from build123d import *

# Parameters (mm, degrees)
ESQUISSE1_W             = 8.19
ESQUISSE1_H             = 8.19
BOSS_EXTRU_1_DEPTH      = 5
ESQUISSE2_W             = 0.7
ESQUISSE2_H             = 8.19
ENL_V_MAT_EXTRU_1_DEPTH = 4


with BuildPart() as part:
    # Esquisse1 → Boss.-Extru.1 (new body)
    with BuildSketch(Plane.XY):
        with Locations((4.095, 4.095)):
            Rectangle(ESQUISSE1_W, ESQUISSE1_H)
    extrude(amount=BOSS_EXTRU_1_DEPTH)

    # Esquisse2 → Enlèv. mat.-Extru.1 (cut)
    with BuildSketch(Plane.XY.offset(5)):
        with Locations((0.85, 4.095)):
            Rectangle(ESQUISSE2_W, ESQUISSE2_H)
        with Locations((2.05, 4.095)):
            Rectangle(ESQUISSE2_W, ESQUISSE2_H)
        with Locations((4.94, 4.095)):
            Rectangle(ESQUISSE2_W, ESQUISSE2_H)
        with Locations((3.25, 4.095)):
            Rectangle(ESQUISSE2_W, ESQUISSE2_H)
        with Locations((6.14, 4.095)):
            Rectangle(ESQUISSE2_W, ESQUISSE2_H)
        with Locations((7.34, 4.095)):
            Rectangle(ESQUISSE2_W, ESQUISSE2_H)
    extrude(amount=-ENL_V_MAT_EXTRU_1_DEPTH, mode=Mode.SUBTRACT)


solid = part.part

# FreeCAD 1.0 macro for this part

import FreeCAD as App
import Part
import Sketcher

V = App.Vector
Q = App.Units.Quantity

doc = App.newDocument("Part")
body = doc.addObject("PartDesign::Body", "Body")

sketch1 = body.newObject("Sketcher::SketchObject", "Sketch")
sketch1.AttachmentSupport = (doc.getObject("XY_Plane"), [""])
sketch1.MapMode = "FlatFace"
sketch1.addGeometry(Part.LineSegment(V(0, 8, 0), V(0, 0, 0)), False)
sketch1.addGeometry(Part.LineSegment(V(0, 0, 0), V(8, 0, 0)), False)
sketch1.addGeometry(Part.LineSegment(V(8, 0, 0), V(8, 8, 0)), False)
sketch1.addGeometry(Part.LineSegment(V(8, 8, 0), V(0, 8, 0)), False)
sketch1.addConstraint(Sketcher.Constraint("Coincident", 0, 2, 1, 1))
sketch1.addConstraint(Sketcher.Constraint("Coincident", 1, 2, 2, 1))
sketch1.addConstraint(Sketcher.Constraint("Coincident", 2, 2, 3, 1))
sketch1.addConstraint(Sketcher.Constraint("Coincident", 3, 2, 0, 1))
sketch1.addConstraint(Sketcher.Constraint("Vertical", 0))
sketch1.addConstraint(Sketcher.Constraint("Horizontal", 1))
sketch1.addConstraint(Sketcher.Constraint("Vertical", 2))
sketch1.addConstraint(Sketcher.Constraint("Horizontal", 3))
sketch1.addConstraint(Sketcher.Constraint("Coincident", 0, 2, -1, 1))
sketch1.addConstraint(Sketcher.Constraint("Equal", 3, 0))
sketch1.addConstraint(Sketcher.Constraint("DistanceX", 1, 1, 1, 2, Q("8.19 mm")))
pad1 = body.newObject("PartDesign::Pad", "Pad")
pad1.Profile = sketch1
pad1.Length = 5

sketch2 = body.newObject("Sketcher::SketchObject", "Sketch001")
sketch2.AttachmentSupport = (doc.getObject("XY_Plane"), [""])
sketch2.MapMode = "FlatFace"
sketch2.AttachmentOffset = App.Placement(V(0, 0, 5), App.Rotation())
sketch2.addGeometry(Part.LineSegment(V(0.5, 8.2, 0), V(0.5, 0, 0)), False)
sketch2.addGeometry(Part.LineSegment(V(0.5, 0, 0), V(1.2, 0, 0)), False)
sketch2.addGeometry(Part.LineSegment(V(1.2, 0, 0), V(1.2, 8.2, 0)), False)
sketch2.addGeometry(Part.LineSegment(V(1.2, 8.2, 0), V(0.5, 8.2, 0)), False)
sketch2.addGeometry(Part.LineSegment(V(1.7, 8.2, 0), V(1.7, 0, 0)), False)
sketch2.addGeometry(Part.LineSegment(V(1.7, 0, 0), V(2.4, 0, 0)), False)
sketch2.addGeometry(Part.LineSegment(V(2.4, 0, 0), V(2.4, 8.2, 0)), False)
sketch2.addGeometry(Part.LineSegment(V(2.4, 8.2, 0), V(1.7, 8.2, 0)), False)
sketch2.addGeometry(Part.LineSegment(V(4.6, 8.2, 0), V(4.6, 0, 0)), False)
sketch2.addGeometry(Part.LineSegment(V(4.6, 0, 0), V(5.3, 0, 0)), False)
sketch2.addGeometry(Part.LineSegment(V(5.3, 0, 0), V(5.3, 8.2, 0)), False)
sketch2.addGeometry(Part.LineSegment(V(5.3, 8.2, 0), V(4.6, 8.2, 0)), False)
sketch2.addGeometry(Part.LineSegment(V(2.9, 8.2, 0), V(2.9, 0, 0)), False)
sketch2.addGeometry(Part.LineSegment(V(2.9, 0, 0), V(3.6, 0, 0)), False)
sketch2.addGeometry(Part.LineSegment(V(3.6, 0, 0), V(3.6, 8.2, 0)), False)
sketch2.addGeometry(Part.LineSegment(V(3.6, 8.2, 0), V(2.9, 8.2, 0)), False)
sketch2.addGeometry(Part.LineSegment(V(5.8, 8.2, 0), V(5.8, 0, 0)), False)
sketch2.addGeometry(Part.LineSegment(V(5.8, 0, 0), V(6.5, 0, 0)), False)
sketch2.addGeometry(Part.LineSegment(V(6.5, 0, 0), V(6.5, 8.2, 0)), False)
sketch2.addGeometry(Part.LineSegment(V(6.5, 8.2, 0), V(5.8, 8.2, 0)), False)
sketch2.addGeometry(Part.LineSegment(V(7, 8.2, 0), V(7, 0, 0)), False)
sketch2.addGeometry(Part.LineSegment(V(7, 0, 0), V(7.7, 0, 0)), False)
sketch2.addGeometry(Part.LineSegment(V(7.7, 0, 0), V(7.7, 8.2, 0)), False)
sketch2.addGeometry(Part.LineSegment(V(7.7, 8.2, 0), V(7, 8.2, 0)), False)
sketch2.addConstraint(Sketcher.Constraint("Coincident", 0, 2, 1, 1))
sketch2.addConstraint(Sketcher.Constraint("Coincident", 1, 2, 2, 1))
sketch2.addConstraint(Sketcher.Constraint("Coincident", 2, 2, 3, 1))
sketch2.addConstraint(Sketcher.Constraint("Coincident", 3, 2, 0, 1))
sketch2.addConstraint(Sketcher.Constraint("Coincident", 4, 2, 5, 1))
sketch2.addConstraint(Sketcher.Constraint("Coincident", 5, 2, 6, 1))
sketch2.addConstraint(Sketcher.Constraint("Coincident", 6, 2, 7, 1))
sketch2.addConstraint(Sketcher.Constraint("Coincident", 7, 2, 4, 1))
sketch2.addConstraint(Sketcher.Constraint("Coincident", 8, 2, 9, 1))
sketch2.addConstraint(Sketcher.Constraint("Coincident", 9, 2, 10, 1))
sketch2.addConstraint(Sketcher.Constraint("Coincident", 10, 2, 11, 1))
sketch2.addConstraint(Sketcher.Constraint("Coincident", 11, 2, 8, 1))
sketch2.addConstraint(Sketcher.Constraint("Coincident", 12, 2, 13, 1))
sketch2.addConstraint(Sketcher.Constraint("Coincident", 13, 2, 14, 1))
sketch2.addConstraint(Sketcher.Constraint("Coincident", 14, 2, 15, 1))
sketch2.addConstraint(Sketcher.Constraint("Coincident", 15, 2, 12, 1))
sketch2.addConstraint(Sketcher.Constraint("Coincident", 16, 2, 17, 1))
sketch2.addConstraint(Sketcher.Constraint("Coincident", 17, 2, 18, 1))
sketch2.addConstraint(Sketcher.Constraint("Coincident", 18, 2, 19, 1))
sketch2.addConstraint(Sketcher.Constraint("Coincident", 19, 2, 16, 1))
sketch2.addConstraint(Sketcher.Constraint("Coincident", 20, 2, 21, 1))
sketch2.addConstraint(Sketcher.Constraint("Coincident", 21, 2, 22, 1))
sketch2.addConstraint(Sketcher.Constraint("Coincident", 22, 2, 23, 1))
sketch2.addConstraint(Sketcher.Constraint("Coincident", 23, 2, 20, 1))
sketch2.addConstraint(Sketcher.Constraint("Vertical", 0))
sketch2.addConstraint(Sketcher.Constraint("Horizontal", 1))
sketch2.addConstraint(Sketcher.Constraint("Vertical", 2))
sketch2.addConstraint(Sketcher.Constraint("Horizontal", 3))
sketch2.addConstraint(Sketcher.Constraint("Vertical", 4))
sketch2.addConstraint(Sketcher.Constraint("Horizontal", 5))
sketch2.addConstraint(Sketcher.Constraint("Vertical", 6))
sketch2.addConstraint(Sketcher.Constraint("Horizontal", 7))
sketch2.addConstraint(Sketcher.Constraint("Vertical", 8))
sketch2.addConstraint(Sketcher.Constraint("Horizontal", 9))
sketch2.addConstraint(Sketcher.Constraint("Vertical", 10))
sketch2.addConstraint(Sketcher.Constraint("Horizontal", 11))
sketch2.addConstraint(Sketcher.Constraint("Vertical", 12))
sketch2.addConstraint(Sketcher.Constraint("Horizontal", 13))
sketch2.addConstraint(Sketcher.Constraint("Vertical", 14))
sketch2.addConstraint(Sketcher.Constraint("Horizontal", 15))
sketch2.addConstraint(Sketcher.Constraint("Vertical", 16))
sketch2.addConstraint(Sketcher.Constraint("Horizontal", 17))
sketch2.addConstraint(Sketcher.Constraint("Vertical", 18))
sketch2.addConstraint(Sketcher.Constraint("Horizontal", 19))
sketch2.addConstraint(Sketcher.Constraint("Vertical", 20))
sketch2.addConstraint(Sketcher.Constraint("Horizontal", 21))
sketch2.addConstraint(Sketcher.Constraint("Vertical", 22))
sketch2.addConstraint(Sketcher.Constraint("Horizontal", 23))
sketch2.addConstraint(Sketcher.Constraint("PointOnObject", 0, 2, -1))
sketch2.addConstraint(Sketcher.Constraint("PointOnObject", 4, 2, -1))
sketch2.addConstraint(Sketcher.Constraint("PointOnObject", 8, 2, -1))
sketch2.addConstraint(Sketcher.Constraint("PointOnObject", 12, 2, -1))
sketch2.addConstraint(Sketcher.Constraint("PointOnObject", 16, 2, -1))
sketch2.addConstraint(Sketcher.Constraint("PointOnObject", 20, 2, -1))
sketch2.addConstraint(Sketcher.Constraint("Horizontal", 3, 2, 6, 2))
sketch2.addConstraint(Sketcher.Constraint("Horizontal", 7, 2, 10, 2))
sketch2.addConstraint(Sketcher.Constraint("Horizontal", 11, 2, 14, 2))
sketch2.addConstraint(Sketcher.Constraint("Horizontal", 15, 2, 18, 2))
sketch2.addConstraint(Sketcher.Constraint("Horizontal", 19, 2, 22, 2))
sketch2.addConstraint(Sketcher.Constraint("Equal", 3, 5))
sketch2.addConstraint(Sketcher.Constraint("Equal", 7, 9))
sketch2.addConstraint(Sketcher.Constraint("Equal", 11, 13))
sketch2.addConstraint(Sketcher.Constraint("Equal", 15, 17))
sketch2.addConstraint(Sketcher.Constraint("Equal", 19, 21))
sketch2.addConstraint(Sketcher.Constraint("DistanceX", 1, 1, 1, 2, Q("0.7 mm")))
sketch2.addConstraint(Sketcher.Constraint("DistanceY", 0, 2, 0, 1, Q("8.19 mm")))
sketch2.addConstraint(Sketcher.Constraint("DistanceX", -1, 1, 0, 2, Q("0.5 mm")))
sketch2.addConstraint(Sketcher.Constraint("DistanceX", -1, 1, 4, 2, Q("1.7 mm")))
sketch2.addConstraint(Sketcher.Constraint("DistanceX", -1, 1, 12, 2, Q("2.9 mm")))
sketch2.addConstraint(Sketcher.Constraint("DistanceX", 9, 2, 16, 2, Q("0.5 mm")))
sketch2.addConstraint(Sketcher.Constraint("DistanceX", 17, 2, 20, 2, Q("0.5 mm")))
sketch2.addConstraint(Sketcher.Constraint("DistanceX", -1, 1, 8, 2, Q("4.59 mm")))
pocket1 = body.newObject("PartDesign::Pocket", "Pocket")
pocket1.Profile = sketch2
pocket1.Length = 4

doc.recompute()
